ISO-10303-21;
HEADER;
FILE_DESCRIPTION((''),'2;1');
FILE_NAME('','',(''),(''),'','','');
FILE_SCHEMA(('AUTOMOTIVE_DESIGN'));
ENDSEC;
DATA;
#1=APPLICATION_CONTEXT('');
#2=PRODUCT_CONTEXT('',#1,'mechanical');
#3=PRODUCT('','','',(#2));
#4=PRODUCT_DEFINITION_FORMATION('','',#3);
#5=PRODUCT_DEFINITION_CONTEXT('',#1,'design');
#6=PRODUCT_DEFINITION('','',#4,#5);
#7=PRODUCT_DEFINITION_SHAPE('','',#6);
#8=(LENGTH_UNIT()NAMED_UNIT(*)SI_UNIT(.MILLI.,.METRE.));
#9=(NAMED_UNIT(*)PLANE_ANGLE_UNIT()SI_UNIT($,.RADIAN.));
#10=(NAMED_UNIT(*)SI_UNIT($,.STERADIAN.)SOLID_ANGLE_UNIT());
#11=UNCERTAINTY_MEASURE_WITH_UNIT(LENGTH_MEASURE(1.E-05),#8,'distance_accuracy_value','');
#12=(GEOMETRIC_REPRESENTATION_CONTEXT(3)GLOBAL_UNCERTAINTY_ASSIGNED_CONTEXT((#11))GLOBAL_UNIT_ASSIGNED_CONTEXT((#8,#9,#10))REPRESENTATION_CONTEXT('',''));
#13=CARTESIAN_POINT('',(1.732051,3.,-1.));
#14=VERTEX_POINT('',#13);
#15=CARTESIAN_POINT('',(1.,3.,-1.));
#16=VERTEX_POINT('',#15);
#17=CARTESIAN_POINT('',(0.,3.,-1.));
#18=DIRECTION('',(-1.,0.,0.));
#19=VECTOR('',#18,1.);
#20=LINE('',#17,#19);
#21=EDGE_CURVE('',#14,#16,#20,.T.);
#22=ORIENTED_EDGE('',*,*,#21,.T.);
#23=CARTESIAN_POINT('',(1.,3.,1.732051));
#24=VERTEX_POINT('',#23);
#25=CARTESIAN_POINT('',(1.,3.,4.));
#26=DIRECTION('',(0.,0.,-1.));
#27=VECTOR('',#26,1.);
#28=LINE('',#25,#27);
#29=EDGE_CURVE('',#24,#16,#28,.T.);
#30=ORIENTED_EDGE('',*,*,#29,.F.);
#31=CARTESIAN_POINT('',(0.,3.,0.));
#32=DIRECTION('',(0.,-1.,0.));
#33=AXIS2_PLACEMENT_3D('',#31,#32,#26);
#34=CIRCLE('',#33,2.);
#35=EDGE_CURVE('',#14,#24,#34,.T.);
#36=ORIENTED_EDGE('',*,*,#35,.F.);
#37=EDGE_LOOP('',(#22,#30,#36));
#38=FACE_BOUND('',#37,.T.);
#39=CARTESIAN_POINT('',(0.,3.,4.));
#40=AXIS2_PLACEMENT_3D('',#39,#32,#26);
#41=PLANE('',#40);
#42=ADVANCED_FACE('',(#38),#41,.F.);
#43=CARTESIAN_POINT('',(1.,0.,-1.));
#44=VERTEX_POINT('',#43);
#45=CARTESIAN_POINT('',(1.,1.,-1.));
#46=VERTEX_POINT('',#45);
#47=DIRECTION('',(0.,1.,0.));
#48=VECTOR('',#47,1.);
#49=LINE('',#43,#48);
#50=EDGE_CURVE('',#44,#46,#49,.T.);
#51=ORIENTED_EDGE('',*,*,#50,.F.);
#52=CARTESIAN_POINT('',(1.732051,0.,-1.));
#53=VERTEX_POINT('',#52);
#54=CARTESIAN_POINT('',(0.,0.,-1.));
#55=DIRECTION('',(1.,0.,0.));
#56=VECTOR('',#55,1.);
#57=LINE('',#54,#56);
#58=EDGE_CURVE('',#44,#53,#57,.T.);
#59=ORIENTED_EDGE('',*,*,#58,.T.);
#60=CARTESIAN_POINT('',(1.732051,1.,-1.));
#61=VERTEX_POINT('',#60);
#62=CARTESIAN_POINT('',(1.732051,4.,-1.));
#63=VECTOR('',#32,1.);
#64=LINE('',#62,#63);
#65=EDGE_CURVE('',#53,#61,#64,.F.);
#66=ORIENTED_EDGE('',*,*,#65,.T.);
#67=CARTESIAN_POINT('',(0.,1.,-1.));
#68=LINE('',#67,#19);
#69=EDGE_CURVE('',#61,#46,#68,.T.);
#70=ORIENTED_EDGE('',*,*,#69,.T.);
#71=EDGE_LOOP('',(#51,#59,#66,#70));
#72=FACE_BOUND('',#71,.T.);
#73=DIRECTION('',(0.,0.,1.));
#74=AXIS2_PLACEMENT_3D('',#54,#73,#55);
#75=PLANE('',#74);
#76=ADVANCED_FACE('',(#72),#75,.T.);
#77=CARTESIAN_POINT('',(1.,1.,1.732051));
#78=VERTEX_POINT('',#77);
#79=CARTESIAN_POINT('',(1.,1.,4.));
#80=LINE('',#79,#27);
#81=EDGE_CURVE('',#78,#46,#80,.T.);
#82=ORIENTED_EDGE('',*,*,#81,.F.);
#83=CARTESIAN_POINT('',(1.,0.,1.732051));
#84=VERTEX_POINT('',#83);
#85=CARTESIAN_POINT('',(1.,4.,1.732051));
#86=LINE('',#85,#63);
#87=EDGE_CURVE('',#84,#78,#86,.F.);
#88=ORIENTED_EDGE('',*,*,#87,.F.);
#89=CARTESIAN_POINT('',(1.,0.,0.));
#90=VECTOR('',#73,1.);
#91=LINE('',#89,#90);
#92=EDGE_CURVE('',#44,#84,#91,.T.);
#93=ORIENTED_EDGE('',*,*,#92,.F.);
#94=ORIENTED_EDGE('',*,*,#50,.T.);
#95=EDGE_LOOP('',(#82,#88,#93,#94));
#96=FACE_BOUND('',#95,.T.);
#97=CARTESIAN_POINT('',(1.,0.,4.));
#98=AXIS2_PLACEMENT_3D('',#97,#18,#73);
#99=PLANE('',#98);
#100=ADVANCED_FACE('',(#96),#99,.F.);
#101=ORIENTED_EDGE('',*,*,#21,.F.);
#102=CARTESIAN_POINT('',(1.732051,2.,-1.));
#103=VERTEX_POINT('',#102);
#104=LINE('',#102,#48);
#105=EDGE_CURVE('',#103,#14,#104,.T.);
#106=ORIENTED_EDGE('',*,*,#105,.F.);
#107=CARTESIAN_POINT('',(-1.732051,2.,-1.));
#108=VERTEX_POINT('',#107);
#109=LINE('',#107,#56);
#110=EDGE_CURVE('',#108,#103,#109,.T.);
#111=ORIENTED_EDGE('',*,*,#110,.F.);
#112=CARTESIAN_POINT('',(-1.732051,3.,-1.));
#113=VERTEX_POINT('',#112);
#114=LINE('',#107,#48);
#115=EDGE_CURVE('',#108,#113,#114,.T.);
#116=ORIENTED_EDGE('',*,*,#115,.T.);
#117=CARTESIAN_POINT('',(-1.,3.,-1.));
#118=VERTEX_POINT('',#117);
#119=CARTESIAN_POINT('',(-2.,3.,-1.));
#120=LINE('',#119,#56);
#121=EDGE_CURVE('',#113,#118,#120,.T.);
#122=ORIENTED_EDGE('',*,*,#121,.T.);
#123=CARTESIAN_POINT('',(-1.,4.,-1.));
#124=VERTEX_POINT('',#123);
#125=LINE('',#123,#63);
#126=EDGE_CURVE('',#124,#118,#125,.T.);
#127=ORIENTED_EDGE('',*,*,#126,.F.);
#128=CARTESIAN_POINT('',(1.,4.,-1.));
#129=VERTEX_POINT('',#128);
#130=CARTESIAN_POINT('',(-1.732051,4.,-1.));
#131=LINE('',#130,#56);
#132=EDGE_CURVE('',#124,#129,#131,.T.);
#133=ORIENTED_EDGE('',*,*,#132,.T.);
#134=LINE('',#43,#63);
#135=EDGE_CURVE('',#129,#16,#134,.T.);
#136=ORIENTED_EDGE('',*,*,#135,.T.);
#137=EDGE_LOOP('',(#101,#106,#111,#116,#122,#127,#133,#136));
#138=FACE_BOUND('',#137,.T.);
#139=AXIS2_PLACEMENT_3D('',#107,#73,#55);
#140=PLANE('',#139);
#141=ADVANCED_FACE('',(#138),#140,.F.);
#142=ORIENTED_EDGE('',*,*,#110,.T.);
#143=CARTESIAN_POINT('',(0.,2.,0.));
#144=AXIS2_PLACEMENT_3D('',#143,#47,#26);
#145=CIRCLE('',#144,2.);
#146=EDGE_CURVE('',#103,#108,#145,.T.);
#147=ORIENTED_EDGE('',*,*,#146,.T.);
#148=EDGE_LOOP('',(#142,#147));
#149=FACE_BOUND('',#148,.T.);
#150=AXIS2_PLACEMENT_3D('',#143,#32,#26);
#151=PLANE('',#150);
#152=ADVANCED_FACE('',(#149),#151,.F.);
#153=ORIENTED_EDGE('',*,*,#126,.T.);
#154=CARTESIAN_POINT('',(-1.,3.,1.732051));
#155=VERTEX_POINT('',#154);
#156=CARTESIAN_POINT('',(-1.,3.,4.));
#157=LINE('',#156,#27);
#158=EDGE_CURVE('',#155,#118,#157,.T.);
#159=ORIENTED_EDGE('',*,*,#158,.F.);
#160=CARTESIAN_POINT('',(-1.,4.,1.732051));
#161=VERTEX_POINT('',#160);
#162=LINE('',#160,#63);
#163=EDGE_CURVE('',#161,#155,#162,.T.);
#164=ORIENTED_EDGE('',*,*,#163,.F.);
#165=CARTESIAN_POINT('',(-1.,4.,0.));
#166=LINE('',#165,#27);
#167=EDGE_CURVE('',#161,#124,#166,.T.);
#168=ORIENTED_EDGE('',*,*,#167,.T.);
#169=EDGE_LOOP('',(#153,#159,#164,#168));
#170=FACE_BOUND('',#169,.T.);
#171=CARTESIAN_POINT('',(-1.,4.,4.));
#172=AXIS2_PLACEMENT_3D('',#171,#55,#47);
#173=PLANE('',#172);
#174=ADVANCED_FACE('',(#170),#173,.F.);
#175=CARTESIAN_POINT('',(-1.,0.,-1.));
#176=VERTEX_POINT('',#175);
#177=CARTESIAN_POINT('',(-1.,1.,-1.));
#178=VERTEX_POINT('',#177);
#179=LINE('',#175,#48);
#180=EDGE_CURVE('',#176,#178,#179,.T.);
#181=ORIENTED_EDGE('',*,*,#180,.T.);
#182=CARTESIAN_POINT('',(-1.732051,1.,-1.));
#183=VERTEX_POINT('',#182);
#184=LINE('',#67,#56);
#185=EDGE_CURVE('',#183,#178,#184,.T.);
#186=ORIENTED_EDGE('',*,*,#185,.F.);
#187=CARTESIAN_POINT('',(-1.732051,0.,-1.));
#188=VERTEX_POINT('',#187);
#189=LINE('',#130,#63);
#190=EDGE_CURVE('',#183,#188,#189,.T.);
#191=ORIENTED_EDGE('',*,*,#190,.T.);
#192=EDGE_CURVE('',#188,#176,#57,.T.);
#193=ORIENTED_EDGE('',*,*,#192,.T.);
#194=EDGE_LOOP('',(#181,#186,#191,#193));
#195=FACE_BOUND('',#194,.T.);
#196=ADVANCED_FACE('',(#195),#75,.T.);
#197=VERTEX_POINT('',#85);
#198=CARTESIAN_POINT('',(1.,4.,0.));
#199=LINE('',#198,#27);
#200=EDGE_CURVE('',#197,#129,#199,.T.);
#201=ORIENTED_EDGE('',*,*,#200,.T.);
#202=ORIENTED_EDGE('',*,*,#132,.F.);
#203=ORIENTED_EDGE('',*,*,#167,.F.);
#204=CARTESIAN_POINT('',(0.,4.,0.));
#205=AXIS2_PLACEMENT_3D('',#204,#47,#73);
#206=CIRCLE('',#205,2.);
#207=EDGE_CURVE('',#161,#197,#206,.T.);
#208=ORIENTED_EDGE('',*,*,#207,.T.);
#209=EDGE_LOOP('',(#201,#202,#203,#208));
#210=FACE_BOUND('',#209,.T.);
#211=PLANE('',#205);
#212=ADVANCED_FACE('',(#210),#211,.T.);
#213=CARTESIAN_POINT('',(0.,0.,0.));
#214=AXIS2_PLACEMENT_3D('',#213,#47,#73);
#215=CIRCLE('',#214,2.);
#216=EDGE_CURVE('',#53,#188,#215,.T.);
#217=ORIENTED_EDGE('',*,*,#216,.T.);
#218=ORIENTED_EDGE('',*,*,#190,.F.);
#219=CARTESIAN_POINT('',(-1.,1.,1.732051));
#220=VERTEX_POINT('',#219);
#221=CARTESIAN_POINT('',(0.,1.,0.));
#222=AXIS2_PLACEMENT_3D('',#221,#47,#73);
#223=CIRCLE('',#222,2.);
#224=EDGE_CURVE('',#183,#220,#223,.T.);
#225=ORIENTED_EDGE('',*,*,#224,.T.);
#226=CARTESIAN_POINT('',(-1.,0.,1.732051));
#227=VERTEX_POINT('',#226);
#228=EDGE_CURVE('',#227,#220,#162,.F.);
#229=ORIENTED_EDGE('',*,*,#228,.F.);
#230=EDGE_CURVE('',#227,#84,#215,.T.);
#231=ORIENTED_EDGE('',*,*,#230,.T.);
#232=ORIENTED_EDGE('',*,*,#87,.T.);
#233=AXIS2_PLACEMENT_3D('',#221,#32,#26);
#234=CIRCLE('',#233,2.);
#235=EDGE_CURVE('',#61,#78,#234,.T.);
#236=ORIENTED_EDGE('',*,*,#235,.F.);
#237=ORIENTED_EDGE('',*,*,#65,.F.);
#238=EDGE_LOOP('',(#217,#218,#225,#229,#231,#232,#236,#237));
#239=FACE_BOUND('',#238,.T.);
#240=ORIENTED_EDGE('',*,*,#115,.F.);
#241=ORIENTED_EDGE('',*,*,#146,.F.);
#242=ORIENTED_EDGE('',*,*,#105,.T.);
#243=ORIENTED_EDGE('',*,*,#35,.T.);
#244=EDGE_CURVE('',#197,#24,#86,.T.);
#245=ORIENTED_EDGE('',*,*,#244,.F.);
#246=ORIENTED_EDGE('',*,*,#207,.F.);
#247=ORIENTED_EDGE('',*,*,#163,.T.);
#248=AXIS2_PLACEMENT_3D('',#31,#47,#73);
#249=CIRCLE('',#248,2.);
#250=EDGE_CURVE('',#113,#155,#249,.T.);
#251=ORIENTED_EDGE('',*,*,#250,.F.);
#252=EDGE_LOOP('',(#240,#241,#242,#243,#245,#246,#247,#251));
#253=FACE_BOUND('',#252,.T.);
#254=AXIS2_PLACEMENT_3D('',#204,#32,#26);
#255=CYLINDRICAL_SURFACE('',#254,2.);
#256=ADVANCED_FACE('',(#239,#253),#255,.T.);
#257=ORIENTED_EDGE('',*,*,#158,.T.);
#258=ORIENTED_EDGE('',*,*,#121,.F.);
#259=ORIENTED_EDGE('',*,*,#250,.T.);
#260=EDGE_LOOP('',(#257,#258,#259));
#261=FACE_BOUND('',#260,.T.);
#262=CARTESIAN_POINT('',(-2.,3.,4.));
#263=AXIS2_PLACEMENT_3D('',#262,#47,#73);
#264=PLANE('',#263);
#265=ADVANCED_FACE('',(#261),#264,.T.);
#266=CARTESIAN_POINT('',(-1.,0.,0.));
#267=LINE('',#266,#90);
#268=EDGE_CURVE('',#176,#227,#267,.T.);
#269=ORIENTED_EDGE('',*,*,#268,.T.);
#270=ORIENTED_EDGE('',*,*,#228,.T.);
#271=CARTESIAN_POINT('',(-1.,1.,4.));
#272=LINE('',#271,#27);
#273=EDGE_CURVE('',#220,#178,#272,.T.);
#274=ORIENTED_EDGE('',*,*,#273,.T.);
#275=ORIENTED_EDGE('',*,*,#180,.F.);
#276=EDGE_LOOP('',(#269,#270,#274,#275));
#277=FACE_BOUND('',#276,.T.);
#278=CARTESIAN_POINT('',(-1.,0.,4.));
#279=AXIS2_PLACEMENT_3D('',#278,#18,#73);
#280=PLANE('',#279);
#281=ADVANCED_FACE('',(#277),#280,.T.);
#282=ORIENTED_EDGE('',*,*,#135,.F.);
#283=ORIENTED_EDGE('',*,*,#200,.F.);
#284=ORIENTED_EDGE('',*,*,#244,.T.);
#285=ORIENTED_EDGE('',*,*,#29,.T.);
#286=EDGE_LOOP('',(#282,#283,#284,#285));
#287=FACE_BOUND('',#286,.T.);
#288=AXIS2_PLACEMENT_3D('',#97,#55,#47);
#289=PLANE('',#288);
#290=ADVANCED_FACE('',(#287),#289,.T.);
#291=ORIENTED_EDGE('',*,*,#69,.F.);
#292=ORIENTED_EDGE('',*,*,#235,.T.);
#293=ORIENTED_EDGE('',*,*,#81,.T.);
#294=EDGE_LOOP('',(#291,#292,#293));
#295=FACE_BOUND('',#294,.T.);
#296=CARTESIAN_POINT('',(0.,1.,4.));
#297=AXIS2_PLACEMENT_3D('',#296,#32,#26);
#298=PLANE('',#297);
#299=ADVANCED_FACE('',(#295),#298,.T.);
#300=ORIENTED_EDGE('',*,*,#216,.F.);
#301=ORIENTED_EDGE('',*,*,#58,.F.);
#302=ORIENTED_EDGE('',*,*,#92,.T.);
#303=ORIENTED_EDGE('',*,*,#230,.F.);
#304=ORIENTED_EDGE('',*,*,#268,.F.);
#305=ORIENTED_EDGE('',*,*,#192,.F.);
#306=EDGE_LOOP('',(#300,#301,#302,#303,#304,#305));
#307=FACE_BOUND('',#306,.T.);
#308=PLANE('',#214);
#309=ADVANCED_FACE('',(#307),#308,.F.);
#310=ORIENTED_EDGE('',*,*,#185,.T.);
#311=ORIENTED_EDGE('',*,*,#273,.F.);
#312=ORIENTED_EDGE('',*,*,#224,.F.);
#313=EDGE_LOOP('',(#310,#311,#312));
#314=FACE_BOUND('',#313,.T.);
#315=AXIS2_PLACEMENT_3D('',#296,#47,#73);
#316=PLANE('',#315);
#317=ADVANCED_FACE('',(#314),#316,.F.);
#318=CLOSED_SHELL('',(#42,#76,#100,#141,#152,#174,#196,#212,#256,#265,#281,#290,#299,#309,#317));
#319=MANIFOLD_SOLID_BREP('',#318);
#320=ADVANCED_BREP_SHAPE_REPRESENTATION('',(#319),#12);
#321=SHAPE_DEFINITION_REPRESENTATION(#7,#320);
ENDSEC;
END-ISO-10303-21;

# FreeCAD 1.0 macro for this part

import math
import FreeCAD as App
import Part
import Sketcher


def add_polygon(sketch, points):
    """Adds a closed chain of lines whose ends are joined by coincident constraints."""
    first, n = sketch.GeometryCount, len(points)
    for a, b in zip(points, points[1:] + points[:1]):
        sketch.addGeometry(Part.LineSegment(App.Vector(*a, 0), App.Vector(*b, 0)), False)
    for i in range(n):
        sketch.addConstraint(Sketcher.Constraint("Coincident", first + i, 2, first + (i + 1) % n, 1))

doc = App.newDocument("Part")
body = doc.addObject("PartDesign::Body", "Body")

# Sketch on XZ plane
sketch1 = body.newObject("Sketcher::SketchObject", "Sketch")
sketch1.AttachmentSupport = (doc.getObject("XZ_Plane"), [""])
sketch1.MapMode = "FlatFace"
sketch1.addGeometry(Part.Circle(App.Vector(0, 0, 0), App.Vector(0, 0, 1), 2), False)
sketch1.addConstraint([
    Sketcher.Constraint("Coincident", 0, 3, -1, 1),
    Sketcher.Constraint("Diameter", 0, 4.0),
])
pad1 = body.newObject("PartDesign::Pad", "Pad")
pad1.Profile = sketch1
pad1.Length = 4
pad1.Reversed = True

# Sketch on XY plane
sketch2 = body.newObject("Sketcher::SketchObject", "Sketch001")
sketch2.AttachmentSupport = (doc.getObject("XY_Plane"), [""])
sketch2.MapMode = "FlatFace"
add_polygon(sketch2, [(-2, 1), (-2, 0), (-1, 0), (-1, 1)])  # lines 0-3
add_polygon(sketch2, [(1, 1), (1, 0), (2, 0), (2, 1)])  # lines 4-7
add_polygon(sketch2, [(1, 4), (1, 3), (2, 3), (2, 4)])  # lines 8-11
add_polygon(sketch2, [(-2, 4), (-2, 3), (-1, 3), (-1, 4)])  # lines 12-15
sketch2.addConstraint([
    Sketcher.Constraint("Vertical", 0),
    Sketcher.Constraint("Horizontal", 1),
    Sketcher.Constraint("Vertical", 2),
    Sketcher.Constraint("Horizontal", 3),
    Sketcher.Constraint("Vertical", 4),
    Sketcher.Constraint("Horizontal", 5),
    Sketcher.Constraint("Vertical", 6),
    Sketcher.Constraint("Horizontal", 7),
    Sketcher.Constraint("Vertical", 8),
    Sketcher.Constraint("Horizontal", 9),
    Sketcher.Constraint("Vertical", 10),
    Sketcher.Constraint("Horizontal", 11),
    Sketcher.Constraint("Vertical", 12),
    Sketcher.Constraint("Horizontal", 13),
    Sketcher.Constraint("Vertical", 14),
    Sketcher.Constraint("Horizontal", 15),
    Sketcher.Constraint("Symmetric", 1, 2, 4, 2, -1, 1),
    Sketcher.Constraint("Symmetric", 0, 2, 5, 2, -2),
    Sketcher.Constraint("Symmetric", 9, 2, 12, 2, -2),
    Sketcher.Constraint("Symmetric", 11, 2, 14, 2, -2),
    Sketcher.Constraint("Horizontal", 3, 2, 6, 2),
    Sketcher.Constraint("Vertical", 7, 2, 8, 2),
    Sketcher.Constraint("Vertical", 6, 2, 9, 2),
    Sketcher.Constraint("Equal", 15, 0),
    Sketcher.Constraint("Equal", 6, 8),
    Sketcher.Constraint("DistanceX", 1, 1, 1, 2, 1.0),
    Sketcher.Constraint("DistanceX", 0, 2, -1, 1, 2.0),
    Sketcher.Constraint("DistanceY", -1, 1, 8, 2, 3.0),
])
pocket1 = body.newObject("PartDesign::Pocket", "Pocket")
pocket1.Profile = sketch2
pocket1.Type = "TwoLengths"
pocket1.Length = 4
pocket1.Length2 = 1
pocket1.Reversed = True

# Sketch on XZ plane
sketch3 = body.newObject("Sketcher::SketchObject", "Sketch002")
sketch3.AttachmentSupport = (doc.getObject("XZ_Plane"), [""])
sketch3.MapMode = "FlatFace"
sketch3.AttachmentOffset = App.Placement(App.Vector(0, 0, -4), App.Rotation())
sketch3.addGeometry([
    Part.LineSegment(App.Vector(-1.7, -1, 0), App.Vector(1.7, -1, 0)),
    Part.ArcOfCircle(Part.Circle(App.Vector(0, 0, 0), App.Vector(0, 0, 1), 2), math.radians(-150), math.radians(-30)),
], False)
sketch3.addConstraint([
    Sketcher.Constraint("Coincident", 0, 1, 1, 1),
    Sketcher.Constraint("Coincident", 1, 2, 0, 2),
    Sketcher.Constraint("Horizontal", 0),
    Sketcher.Constraint("Coincident", 1, 3, -1, 1),
    Sketcher.Constraint("Radius", 1, 2.0),
    Sketcher.Constraint("DistanceY", 0, 1, -1, 1, 1.0),
])
pocket2 = body.newObject("PartDesign::Pocket", "Pocket001")
pocket2.Profile = sketch3
pocket2.Length = 2
pocket2.Reversed = True

doc.recompute()
